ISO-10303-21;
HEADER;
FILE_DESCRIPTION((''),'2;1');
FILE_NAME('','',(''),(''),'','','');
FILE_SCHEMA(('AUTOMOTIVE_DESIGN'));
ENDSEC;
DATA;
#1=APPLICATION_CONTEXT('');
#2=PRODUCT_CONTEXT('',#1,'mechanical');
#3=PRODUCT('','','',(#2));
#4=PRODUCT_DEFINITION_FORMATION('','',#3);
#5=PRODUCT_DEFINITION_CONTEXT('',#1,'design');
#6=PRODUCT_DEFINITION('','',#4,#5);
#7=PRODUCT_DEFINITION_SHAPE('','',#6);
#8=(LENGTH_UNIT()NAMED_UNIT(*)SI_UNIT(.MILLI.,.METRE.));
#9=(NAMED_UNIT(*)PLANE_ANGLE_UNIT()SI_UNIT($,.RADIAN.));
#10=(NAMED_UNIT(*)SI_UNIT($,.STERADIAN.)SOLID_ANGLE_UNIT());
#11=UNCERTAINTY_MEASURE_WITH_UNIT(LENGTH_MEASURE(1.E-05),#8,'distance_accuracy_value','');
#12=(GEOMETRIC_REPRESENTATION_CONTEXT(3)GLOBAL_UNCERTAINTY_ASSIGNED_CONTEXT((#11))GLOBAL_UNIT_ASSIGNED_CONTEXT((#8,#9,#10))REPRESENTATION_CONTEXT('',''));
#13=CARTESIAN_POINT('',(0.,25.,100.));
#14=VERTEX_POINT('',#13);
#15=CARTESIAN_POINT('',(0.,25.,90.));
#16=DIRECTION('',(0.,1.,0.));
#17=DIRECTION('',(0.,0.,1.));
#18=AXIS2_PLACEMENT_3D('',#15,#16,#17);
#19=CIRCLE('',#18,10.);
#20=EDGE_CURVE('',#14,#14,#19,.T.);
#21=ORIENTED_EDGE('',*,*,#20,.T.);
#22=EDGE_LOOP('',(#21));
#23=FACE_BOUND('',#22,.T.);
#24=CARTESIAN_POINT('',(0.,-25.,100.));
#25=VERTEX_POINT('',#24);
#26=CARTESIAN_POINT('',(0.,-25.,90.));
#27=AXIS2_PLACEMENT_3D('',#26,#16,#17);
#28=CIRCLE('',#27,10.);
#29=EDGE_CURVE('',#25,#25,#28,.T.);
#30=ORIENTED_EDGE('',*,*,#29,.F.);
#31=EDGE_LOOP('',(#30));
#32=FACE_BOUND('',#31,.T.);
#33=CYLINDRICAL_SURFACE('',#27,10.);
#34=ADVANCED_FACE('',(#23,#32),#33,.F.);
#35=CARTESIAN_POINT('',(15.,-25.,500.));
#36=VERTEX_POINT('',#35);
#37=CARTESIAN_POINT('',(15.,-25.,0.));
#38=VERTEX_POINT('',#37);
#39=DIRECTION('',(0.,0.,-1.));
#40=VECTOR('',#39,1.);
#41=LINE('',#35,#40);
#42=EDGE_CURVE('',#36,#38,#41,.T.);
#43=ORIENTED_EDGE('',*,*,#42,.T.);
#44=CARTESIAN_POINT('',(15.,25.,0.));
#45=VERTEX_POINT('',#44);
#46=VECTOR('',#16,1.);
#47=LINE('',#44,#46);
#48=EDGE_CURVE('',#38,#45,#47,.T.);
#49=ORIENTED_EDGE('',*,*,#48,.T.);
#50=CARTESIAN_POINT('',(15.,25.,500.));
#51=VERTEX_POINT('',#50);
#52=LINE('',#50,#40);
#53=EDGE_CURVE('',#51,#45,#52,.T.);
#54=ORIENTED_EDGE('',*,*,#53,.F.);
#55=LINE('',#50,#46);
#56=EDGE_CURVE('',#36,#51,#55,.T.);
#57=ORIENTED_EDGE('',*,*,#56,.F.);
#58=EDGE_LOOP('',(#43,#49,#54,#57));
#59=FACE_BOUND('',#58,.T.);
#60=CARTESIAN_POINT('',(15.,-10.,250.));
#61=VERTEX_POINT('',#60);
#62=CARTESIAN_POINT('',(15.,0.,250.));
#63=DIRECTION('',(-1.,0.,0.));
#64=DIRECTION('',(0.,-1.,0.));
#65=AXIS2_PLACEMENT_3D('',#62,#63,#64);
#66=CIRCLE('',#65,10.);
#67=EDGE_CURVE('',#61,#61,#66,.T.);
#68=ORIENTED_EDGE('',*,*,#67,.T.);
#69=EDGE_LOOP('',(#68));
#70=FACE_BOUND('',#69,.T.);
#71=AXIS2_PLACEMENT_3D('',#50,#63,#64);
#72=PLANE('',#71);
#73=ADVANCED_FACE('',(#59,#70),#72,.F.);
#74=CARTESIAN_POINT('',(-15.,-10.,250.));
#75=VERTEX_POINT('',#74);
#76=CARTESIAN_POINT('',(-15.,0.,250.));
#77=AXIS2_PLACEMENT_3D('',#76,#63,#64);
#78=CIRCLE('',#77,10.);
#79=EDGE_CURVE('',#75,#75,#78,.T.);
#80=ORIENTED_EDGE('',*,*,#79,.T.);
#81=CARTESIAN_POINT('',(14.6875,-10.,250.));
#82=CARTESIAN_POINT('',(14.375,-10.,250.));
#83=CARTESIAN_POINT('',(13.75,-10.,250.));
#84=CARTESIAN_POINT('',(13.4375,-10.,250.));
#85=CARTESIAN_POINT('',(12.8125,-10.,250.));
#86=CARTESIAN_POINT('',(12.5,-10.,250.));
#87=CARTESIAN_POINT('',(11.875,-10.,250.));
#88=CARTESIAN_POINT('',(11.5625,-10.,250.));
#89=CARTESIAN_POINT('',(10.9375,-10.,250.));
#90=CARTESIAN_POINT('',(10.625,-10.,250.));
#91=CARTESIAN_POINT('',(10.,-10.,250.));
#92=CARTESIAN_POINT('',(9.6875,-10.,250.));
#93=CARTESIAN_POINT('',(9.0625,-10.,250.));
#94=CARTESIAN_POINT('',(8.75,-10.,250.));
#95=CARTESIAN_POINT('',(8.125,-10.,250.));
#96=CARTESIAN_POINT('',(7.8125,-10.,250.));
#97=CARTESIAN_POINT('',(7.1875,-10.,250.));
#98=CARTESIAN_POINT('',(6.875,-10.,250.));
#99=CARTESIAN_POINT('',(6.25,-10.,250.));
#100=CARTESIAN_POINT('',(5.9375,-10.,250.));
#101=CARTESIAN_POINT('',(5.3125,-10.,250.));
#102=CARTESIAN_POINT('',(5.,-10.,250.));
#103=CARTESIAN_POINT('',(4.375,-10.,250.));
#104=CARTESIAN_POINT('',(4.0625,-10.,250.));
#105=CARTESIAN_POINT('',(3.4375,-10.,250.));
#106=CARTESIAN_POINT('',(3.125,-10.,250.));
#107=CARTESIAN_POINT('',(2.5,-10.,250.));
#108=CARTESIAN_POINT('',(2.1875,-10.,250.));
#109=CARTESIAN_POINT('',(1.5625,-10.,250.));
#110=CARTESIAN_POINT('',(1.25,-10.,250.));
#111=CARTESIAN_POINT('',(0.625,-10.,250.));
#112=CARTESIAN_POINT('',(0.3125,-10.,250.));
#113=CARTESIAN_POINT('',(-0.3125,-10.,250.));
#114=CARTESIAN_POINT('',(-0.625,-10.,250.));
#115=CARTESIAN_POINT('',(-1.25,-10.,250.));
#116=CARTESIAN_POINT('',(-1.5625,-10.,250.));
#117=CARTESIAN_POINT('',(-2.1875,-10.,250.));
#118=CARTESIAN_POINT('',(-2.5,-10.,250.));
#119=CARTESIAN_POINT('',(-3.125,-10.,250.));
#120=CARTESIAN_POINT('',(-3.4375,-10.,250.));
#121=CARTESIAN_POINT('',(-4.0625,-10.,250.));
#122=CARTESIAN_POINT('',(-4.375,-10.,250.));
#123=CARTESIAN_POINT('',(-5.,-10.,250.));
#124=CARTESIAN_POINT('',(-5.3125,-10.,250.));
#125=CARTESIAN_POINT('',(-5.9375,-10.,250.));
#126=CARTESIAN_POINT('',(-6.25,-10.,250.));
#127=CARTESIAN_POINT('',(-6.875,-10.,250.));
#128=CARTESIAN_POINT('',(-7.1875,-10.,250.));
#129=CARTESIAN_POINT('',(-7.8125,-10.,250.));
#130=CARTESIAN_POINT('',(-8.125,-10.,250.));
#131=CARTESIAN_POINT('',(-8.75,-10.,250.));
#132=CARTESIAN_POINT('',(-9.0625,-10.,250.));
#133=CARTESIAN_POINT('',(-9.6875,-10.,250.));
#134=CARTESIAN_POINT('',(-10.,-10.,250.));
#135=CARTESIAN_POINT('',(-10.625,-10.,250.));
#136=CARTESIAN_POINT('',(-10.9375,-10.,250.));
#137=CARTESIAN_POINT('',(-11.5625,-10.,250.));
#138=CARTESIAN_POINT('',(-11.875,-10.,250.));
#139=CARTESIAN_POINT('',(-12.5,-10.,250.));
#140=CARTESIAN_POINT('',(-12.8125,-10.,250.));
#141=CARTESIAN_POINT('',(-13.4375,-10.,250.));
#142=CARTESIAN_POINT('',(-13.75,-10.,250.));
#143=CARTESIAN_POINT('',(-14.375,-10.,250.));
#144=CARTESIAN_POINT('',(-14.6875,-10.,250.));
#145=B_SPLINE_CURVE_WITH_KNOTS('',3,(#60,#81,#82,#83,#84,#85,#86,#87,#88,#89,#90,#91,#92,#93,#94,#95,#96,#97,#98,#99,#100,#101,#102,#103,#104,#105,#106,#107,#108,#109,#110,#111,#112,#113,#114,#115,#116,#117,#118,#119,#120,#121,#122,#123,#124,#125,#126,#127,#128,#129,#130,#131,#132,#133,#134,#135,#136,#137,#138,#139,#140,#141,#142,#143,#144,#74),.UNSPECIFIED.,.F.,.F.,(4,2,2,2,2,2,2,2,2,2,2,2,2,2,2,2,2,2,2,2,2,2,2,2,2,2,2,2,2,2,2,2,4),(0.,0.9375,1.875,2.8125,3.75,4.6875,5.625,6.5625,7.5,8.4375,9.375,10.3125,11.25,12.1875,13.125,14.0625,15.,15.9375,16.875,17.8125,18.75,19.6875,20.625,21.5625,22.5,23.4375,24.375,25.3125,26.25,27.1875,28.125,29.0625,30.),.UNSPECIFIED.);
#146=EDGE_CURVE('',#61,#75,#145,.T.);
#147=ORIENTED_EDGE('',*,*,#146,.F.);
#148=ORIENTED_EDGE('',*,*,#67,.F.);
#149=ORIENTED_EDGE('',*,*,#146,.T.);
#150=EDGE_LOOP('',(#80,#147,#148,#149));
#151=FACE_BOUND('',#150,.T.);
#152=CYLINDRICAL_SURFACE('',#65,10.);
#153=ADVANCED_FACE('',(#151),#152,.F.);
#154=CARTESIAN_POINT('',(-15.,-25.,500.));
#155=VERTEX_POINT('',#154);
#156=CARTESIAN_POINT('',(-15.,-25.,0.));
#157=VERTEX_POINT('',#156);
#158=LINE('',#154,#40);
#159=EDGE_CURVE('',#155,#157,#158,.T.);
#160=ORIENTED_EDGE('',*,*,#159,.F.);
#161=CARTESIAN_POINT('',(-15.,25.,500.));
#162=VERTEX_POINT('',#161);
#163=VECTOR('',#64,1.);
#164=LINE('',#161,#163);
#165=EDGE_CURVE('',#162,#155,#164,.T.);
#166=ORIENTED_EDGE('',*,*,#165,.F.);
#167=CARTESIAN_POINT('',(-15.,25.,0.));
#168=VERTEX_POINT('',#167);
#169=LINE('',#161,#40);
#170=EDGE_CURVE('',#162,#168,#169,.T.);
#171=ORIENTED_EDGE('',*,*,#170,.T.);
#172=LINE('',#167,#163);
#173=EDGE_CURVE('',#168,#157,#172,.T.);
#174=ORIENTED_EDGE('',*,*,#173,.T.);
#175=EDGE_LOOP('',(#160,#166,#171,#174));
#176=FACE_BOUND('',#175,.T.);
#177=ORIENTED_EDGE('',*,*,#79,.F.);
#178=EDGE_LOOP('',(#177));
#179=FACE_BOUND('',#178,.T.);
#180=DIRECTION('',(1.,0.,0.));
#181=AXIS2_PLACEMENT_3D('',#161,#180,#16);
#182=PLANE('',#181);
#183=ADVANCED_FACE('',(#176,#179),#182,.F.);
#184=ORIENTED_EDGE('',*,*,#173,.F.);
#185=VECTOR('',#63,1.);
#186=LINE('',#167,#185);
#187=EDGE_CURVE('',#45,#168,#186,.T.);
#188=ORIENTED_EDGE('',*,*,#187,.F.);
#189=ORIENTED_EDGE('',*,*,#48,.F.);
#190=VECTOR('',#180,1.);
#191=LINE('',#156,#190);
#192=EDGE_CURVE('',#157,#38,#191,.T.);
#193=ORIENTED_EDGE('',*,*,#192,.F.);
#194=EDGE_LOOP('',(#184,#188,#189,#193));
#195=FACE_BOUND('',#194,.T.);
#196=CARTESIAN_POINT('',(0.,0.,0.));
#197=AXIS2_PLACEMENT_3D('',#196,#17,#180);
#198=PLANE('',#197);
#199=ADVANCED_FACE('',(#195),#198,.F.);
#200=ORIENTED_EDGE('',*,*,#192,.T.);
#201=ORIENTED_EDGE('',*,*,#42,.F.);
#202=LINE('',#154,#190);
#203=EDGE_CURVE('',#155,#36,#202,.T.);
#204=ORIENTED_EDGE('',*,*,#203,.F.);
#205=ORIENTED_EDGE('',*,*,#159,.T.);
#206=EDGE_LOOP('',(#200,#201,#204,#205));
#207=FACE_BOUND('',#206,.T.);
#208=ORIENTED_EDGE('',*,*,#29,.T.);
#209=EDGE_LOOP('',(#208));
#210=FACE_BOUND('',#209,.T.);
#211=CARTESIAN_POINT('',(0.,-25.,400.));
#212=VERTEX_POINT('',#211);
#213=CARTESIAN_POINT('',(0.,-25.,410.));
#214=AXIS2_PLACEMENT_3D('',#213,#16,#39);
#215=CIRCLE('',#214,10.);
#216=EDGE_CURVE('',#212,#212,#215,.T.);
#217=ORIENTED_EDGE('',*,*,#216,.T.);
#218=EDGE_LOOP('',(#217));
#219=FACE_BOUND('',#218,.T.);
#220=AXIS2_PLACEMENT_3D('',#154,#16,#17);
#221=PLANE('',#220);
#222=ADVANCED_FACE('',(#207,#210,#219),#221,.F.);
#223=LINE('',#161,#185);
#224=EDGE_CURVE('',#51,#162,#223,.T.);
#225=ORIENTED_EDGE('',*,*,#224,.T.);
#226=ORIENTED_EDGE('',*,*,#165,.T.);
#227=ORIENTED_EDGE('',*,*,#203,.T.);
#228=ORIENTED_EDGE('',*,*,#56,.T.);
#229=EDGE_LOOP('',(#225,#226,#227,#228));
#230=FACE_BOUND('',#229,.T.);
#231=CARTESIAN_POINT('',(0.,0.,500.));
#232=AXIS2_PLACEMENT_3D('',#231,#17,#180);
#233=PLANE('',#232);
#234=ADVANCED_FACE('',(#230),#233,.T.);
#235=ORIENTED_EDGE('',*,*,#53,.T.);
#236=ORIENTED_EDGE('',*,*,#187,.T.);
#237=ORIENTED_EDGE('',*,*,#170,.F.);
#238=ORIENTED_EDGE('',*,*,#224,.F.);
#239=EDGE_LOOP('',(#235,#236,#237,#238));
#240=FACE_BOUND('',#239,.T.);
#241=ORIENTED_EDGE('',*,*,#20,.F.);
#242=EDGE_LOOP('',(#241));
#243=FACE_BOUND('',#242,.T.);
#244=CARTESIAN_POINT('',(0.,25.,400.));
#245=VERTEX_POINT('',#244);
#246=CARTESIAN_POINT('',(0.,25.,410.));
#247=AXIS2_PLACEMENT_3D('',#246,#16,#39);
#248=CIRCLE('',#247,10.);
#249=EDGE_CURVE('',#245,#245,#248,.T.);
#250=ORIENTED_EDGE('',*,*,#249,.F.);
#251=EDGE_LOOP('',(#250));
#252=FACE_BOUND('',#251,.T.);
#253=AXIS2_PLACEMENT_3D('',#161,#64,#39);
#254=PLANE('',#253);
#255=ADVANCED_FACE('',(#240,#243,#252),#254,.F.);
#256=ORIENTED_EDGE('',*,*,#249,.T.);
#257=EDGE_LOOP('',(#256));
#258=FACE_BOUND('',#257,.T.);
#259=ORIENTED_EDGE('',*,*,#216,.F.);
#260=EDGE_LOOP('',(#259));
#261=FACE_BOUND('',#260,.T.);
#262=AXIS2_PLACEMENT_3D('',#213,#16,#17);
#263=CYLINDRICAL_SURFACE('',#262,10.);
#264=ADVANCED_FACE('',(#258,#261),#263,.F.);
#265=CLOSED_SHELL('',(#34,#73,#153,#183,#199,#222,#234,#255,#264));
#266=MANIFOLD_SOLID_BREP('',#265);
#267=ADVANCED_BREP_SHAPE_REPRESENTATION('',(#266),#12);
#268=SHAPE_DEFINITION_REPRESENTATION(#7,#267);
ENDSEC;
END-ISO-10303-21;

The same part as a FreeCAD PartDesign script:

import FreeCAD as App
import Part
import Sketcher
Q = App.Units.Quantity


def add_polygon(sketch, points):
    """Adds a closed chain of lines whose ends are joined by coincident constraints."""
    first, n = sketch.GeometryCount, len(points)
    for a, b in zip(points, points[1:] + points[:1]):
        sketch.addGeometry(Part.LineSegment(App.Vector(*a, 0), App.Vector(*b, 0)), False)
    for i in range(n):
        sketch.addConstraint(Sketcher.Constraint("Coincident", first + i, 2, first + (i + 1) % n, 1))

doc = App.newDocument("Part")
body = doc.addObject("PartDesign::Body", "Body")

# Sketch on XY plane
sketch1 = body.newObject("Sketcher::SketchObject", "Sketch")
sketch1.AttachmentSupport = (doc.getObject("XY_Plane"), [""])
sketch1.MapMode = "FlatFace"
add_polygon(sketch1, [(-15, 25), (-15, -25), (15, -25), (15, 25)])  # lines 0-3
sketch1.addConstraint([
    Sketcher.Constraint("Vertical", 0),
    Sketcher.Constraint("Horizontal", 1),
    Sketcher.Constraint("Vertical", 2),
    Sketcher.Constraint("Horizontal", 3),
    Sketcher.Constraint("Symmetric", 0, 2, 2, 2, -1, 1),
    Sketcher.Constraint("DistanceX", 1, 1, 1, 2, Q("30 mm")),
    Sketcher.Constraint("DistanceY", 0, 2, 0, 1, Q("50 mm")),
])
pad1 = body.newObject("PartDesign::Pad", "Pad")
pad1.Profile = sketch1
pad1.Length = 500

# Sketch on XZ plane
sketch2 = body.newObject("Sketcher::SketchObject", "Sketch001")
sketch2.AttachmentSupport = (doc.getObject("XZ_Plane"), [""])
sketch2.MapMode = "FlatFace"
sketch2.AttachmentOffset = App.Placement(App.Vector(0, 0, -25), App.Rotation())
sketch2.addGeometry([
    Part.Circle(App.Vector(0, 90, 0), App.Vector(0, 0, 1), 10),
    Part.Circle(App.Vector(0, 410, 0), App.Vector(0, 0, 1), 10),
], False)
sketch2.addConstraint([
    Sketcher.Constraint("Equal", 0, 1),
    Sketcher.Constraint("PointOnObject", 0, 3, -2),
    Sketcher.Constraint("PointOnObject", 1, 3, -2),
    Sketcher.Constraint("Diameter", 0, Q("20 mm")),
    Sketcher.Constraint("DistanceY", -1, 1, 0, 3, Q("90 mm")),
    Sketcher.Constraint("DistanceY", -1, 1, 1, 3, Q("410 mm")),
])
pocket1 = body.newObject("PartDesign::Pocket", "Pocket")
pocket1.Profile = sketch2
pocket1.Type = "ThroughAll"
pocket1.Reversed = True

# Sketch on YZ plane
sketch3 = body.newObject("Sketcher::SketchObject", "Sketch002")
sketch3.AttachmentSupport = (doc.getObject("YZ_Plane"), [""])
sketch3.MapMode = "FlatFace"
sketch3.AttachmentOffset = App.Placement(App.Vector(0, 0, -15), App.Rotation())
sketch3.addGeometry(Part.Circle(App.Vector(0, 250, 0), App.Vector(0, 0, 1), 10), False)
sketch3.addConstraint([
    Sketcher.Constraint("PointOnObject", 0, 3, -2),
    Sketcher.Constraint("Diameter", 0, Q("20 mm")),
    Sketcher.Constraint("DistanceY", -1, 1, 0, 3, Q("250 mm")),
])
pocket2 = body.newObject("PartDesign::Pocket", "Pocket001")
pocket2.Profile = sketch3
pocket2.Type = "ThroughAll"
pocket2.Reversed = True

doc.recompute()
